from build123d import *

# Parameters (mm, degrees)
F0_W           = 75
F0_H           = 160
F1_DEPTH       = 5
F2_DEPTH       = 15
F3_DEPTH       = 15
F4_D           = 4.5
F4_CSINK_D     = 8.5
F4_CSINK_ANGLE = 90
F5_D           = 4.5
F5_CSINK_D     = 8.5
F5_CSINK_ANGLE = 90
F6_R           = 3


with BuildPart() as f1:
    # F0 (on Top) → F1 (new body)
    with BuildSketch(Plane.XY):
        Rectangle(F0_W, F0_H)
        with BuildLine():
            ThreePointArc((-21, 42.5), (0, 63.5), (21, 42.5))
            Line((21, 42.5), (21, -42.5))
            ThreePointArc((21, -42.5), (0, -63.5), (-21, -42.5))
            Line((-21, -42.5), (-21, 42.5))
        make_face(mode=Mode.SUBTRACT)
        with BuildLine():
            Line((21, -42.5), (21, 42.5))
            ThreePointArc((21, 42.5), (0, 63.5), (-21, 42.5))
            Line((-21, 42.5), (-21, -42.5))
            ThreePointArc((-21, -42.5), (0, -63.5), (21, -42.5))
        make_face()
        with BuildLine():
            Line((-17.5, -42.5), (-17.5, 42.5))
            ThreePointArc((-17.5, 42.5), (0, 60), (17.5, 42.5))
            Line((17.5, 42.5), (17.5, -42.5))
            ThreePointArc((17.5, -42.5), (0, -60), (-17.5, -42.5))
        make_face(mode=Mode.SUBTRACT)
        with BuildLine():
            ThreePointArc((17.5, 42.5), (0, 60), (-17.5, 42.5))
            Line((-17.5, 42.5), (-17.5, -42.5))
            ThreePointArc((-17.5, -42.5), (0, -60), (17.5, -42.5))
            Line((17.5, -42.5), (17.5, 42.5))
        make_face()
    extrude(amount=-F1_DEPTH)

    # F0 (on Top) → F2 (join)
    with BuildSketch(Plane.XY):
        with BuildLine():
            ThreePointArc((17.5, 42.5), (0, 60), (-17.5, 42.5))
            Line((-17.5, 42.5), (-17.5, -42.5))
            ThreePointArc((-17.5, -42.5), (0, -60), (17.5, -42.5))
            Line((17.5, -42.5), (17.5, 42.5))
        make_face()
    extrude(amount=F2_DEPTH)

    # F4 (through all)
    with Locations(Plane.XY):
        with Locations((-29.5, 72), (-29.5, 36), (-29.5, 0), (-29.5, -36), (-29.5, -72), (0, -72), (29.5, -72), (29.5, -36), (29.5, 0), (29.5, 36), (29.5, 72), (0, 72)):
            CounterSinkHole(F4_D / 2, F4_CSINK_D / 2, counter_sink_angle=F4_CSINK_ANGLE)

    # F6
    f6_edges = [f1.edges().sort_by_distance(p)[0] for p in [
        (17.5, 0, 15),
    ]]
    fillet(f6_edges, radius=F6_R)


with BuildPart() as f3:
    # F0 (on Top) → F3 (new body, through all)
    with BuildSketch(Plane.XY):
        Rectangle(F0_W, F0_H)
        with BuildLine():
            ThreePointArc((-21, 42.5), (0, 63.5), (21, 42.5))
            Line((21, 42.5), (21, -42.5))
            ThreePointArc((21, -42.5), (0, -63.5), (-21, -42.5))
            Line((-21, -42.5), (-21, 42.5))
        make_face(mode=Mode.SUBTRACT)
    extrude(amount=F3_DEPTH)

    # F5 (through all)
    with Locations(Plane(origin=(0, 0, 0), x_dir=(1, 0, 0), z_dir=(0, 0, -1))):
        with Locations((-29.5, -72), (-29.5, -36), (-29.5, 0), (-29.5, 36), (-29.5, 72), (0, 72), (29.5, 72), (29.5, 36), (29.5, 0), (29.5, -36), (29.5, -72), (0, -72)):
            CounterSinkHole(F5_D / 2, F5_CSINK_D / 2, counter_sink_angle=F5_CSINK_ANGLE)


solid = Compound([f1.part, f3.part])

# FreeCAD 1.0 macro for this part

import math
import FreeCAD as App
import Part
import Sketcher

V = App.Vector


def edges_at(feature, points):
    """Names of the edges that pass closest to the given points."""
    edges = feature.Shape.Edges
    near = lambda p: min(range(len(edges)), key=lambda i: edges[i].distToShape(Part.Vertex(*p))[0])
    return sorted({f"Edge{near(p) + 1}" for p in points})


def add_polygon(sketch, points):
    """Adds a closed chain of lines whose ends are joined by coincident constraints."""
    first, n = sketch.GeometryCount, len(points)
    for a, b in zip(points, points[1:] + points[:1]):
        sketch.addGeometry(Part.LineSegment(App.Vector(*a, 0), App.Vector(*b, 0)), False)
    for i in range(n):
        sketch.addConstraint(Sketcher.Constraint("Coincident", first + i, 2, first + (i + 1) % n, 1))

doc = App.newDocument("Part")
params = doc.addObject("Spreadsheet::Sheet", "Params")
for row, (alias, value) in enumerate([
    ("sketch1_width", "75 mm"),
    ("sketch1_height", "160 mm"),
    ("pad1_length", "5 mm"),
    ("sketch2_radius", "17.5 mm"),
    ("sketch2_height", "85 mm"),
    ("pad2_length", "15 mm"),
    ("sketch3_diameter", "4.5 mm"),
    ("hole_diameter", "4.5 mm"),
    ("hole_csink_diameter", "8.5 mm"),
    ("fillet_radius", "3 mm"),
    ("sketch4_radius", "21 mm"),
    ("sketch4_width", "75 mm"),
    ("sketch4_height", "160 mm"),
    ("sketch4_height2", "85 mm"),
    ("pad3_length", "15 mm"),
    ("sketch5_diameter", "4.5 mm"),
    ("hole2_diameter", "4.5 mm"),
    ("hole2_csink_diameter", "8.5 mm"),
], start=1):
    params.set(f"A{row}", alias)
    params.set(f"B{row}", "=" + value)
    params.setAlias(f"B{row}", alias)

body = doc.addObject("PartDesign::Body", "Body")

sketch1 = body.newObject("Sketcher::SketchObject", "Sketch")
sketch1.AttachmentSupport = (doc.getObject("XY_Plane"), [""])
sketch1.MapMode = "FlatFace"
add_polygon(sketch1, [(-38, 80), (-38, -80), (38, -80), (38, 80)])
sketch1.addConstraint([
    Sketcher.Constraint("Vertical", 0),
    Sketcher.Constraint("Horizontal", 1),
    Sketcher.Constraint("Vertical", 2),
    Sketcher.Constraint("Horizontal", 3),
    Sketcher.Constraint("Symmetric", 0, 2, 2, 2, -1, 1),
    Sketcher.Constraint("DistanceX", 1, 1, 1, 2, 75.0),
    Sketcher.Constraint("DistanceY", 0, 2, 0, 1, 160.0),
])
sketch1.setExpression("Constraints[9]", "Params.sketch1_width")
sketch1.setExpression("Constraints[10]", "Params.sketch1_height")
pad1 = body.newObject("PartDesign::Pad", "Pad")
pad1.Profile = sketch1
pad1.setExpression("Length", "Params.pad1_length")
pad1.Reversed = True

sketch2 = body.newObject("Sketcher::SketchObject", "Sketch001")
sketch2.AttachmentSupport = (doc.getObject("XY_Plane"), [""])
sketch2.MapMode = "FlatFace"
sketch2.addGeometry([
    Part.ArcOfCircle(Part.Circle(V(0, 42, 0), V(0, 0, 1), 18), math.radians(0), math.radians(180)),
    Part.LineSegment(V(-18, 42, 0), V(-18, -42, 0)),
    Part.ArcOfCircle(Part.Circle(V(0, -42, 0), V(0, 0, 1), 18), math.radians(180), math.radians(360)),
    Part.LineSegment(V(18, -42, 0), V(18, 42, 0)),
], False)
sketch2.addConstraint([
    Sketcher.Constraint("Tangent", 0, 2, 1, 1),
    Sketcher.Constraint("Tangent", 1, 2, 2, 1),
    Sketcher.Constraint("Tangent", 2, 2, 3, 1),
    Sketcher.Constraint("Tangent", 3, 2, 0, 1),
    Sketcher.Constraint("Vertical", 1),
    Sketcher.Constraint("Vertical", 3),
    Sketcher.Constraint("Symmetric", 0, 3, 2, 3, -1, 1),
    Sketcher.Constraint("Radius", 0, 17.5),
    Sketcher.Constraint("DistanceY", 1, 2, 1, 1, 85.0),
])
sketch2.setExpression("Constraints[7]", "Params.sketch2_radius")
sketch2.setExpression("Constraints[8]", "Params.sketch2_height")
pad2 = body.newObject("PartDesign::Pad", "Pad001")
pad2.Profile = sketch2
pad2.setExpression("Length", "Params.pad2_length")

sketch3 = body.newObject("Sketcher::SketchObject", "Sketch002")
sketch3.AttachmentSupport = (doc.getObject("XY_Plane"), [""])
sketch3.MapMode = "FlatFace"
sketch3.addGeometry([
    Part.Circle(V(-29.5, 72, 0), V(0, 0, 1), 2.2),
    Part.Circle(V(-29.5, 36, 0), V(0, 0, 1), 2.2),
    Part.Circle(V(-29.5, 0, 0), V(0, 0, 1), 2.2),
    Part.Circle(V(-29.5, -36, 0), V(0, 0, 1), 2.2),
    Part.Circle(V(-29.5, -72, 0), V(0, 0, 1), 2.2),
    Part.Circle(V(0, -72, 0), V(0, 0, 1), 2.2),
    Part.Circle(V(29.5, -72, 0), V(0, 0, 1), 2.2),
    Part.Circle(V(29.5, -36, 0), V(0, 0, 1), 2.2),
    Part.Circle(V(29.5, 0, 0), V(0, 0, 1), 2.2),
    Part.Circle(V(29.5, 36, 0), V(0, 0, 1), 2.2),
    Part.Circle(V(29.5, 72, 0), V(0, 0, 1), 2.2),
    Part.Circle(V(0, 72, 0), V(0, 0, 1), 2.2),
], False)
sketch3.addConstraint([
    Sketcher.Constraint("Equal", 0, 1),
    Sketcher.Constraint("Equal", 1, 2),
    Sketcher.Constraint("Equal", 2, 3),
    Sketcher.Constraint("Equal", 3, 4),
    Sketcher.Constraint("Equal", 4, 5),
    Sketcher.Constraint("Equal", 5, 6),
    Sketcher.Constraint("Equal", 6, 7),
    Sketcher.Constraint("Equal", 7, 8),
    Sketcher.Constraint("Equal", 8, 9),
    Sketcher.Constraint("Equal", 9, 10),
    Sketcher.Constraint("Equal", 10, 11),
    Sketcher.Constraint("Symmetric", 0, 3, 6, 3, -1, 1),
    Sketcher.Constraint("Symmetric", 1, 3, 7, 3, -1, 1),
    Sketcher.Constraint("Symmetric", 2, 3, 8, 3, -1, 1),
    Sketcher.Constraint("Symmetric", 3, 3, 9, 3, -1, 1),
    Sketcher.Constraint("Symmetric", 4, 3, 10, 3, -1, 1),
    Sketcher.Constraint("Symmetric", 5, 3, 11, 3, -1, 1),
    Sketcher.Constraint("Symmetric", 4, 3, 6, 3, -2),
    Sketcher.Constraint("Symmetric", 3, 3, 7, 3, -2),
    Sketcher.Constraint("PointOnObject", 2, 3, -1),
    Sketcher.Constraint("PointOnObject", 5, 3, -2),
    Sketcher.Constraint("Horizontal", 4, 3, 5, 3),
    Sketcher.Constraint("Vertical", 0, 3, 1, 3),
    Sketcher.Constraint("Vertical", 1, 3, 2, 3),
    Sketcher.Constraint("Diameter", 0, 4.5),
    Sketcher.Constraint("DistanceY", -1, 1, 0, 3, 72.0),
    Sketcher.Constraint("DistanceY", -1, 1, 1, 3, 36.0),
    Sketcher.Constraint("DistanceX", 4, 3, 6, 3, 59.0),
])
sketch3.setExpression("Constraints[24]", "Params.sketch3_diameter")
doc.recompute()
hole = body.newObject("PartDesign::Hole", "Hole")
hole.Profile = sketch3
hole.ThreadType = "None"
hole.setExpression("Diameter", "Params.hole_diameter")
hole.DepthType = "ThroughAll"
hole.HoleCutType = "Countersink"
hole.setExpression("HoleCutDiameter", "Params.hole_csink_diameter")
hole.HoleCutCountersinkAngle = 90
doc.recompute()

fillet = body.newObject("PartDesign::Fillet", "Fillet")
fillet.Base = (hole, edges_at(hole, [(17.5, 0, 15)]))
fillet.setExpression("Radius", "Params.fillet_radius")
body2 = doc.addObject("PartDesign::Body", "Body001")

sketch4 = body2.newObject("Sketcher::SketchObject", "Sketch003")
sketch4.AttachmentSupport = (doc.getObject("XY_Plane001"), [""])
sketch4.MapMode = "FlatFace"
add_polygon(sketch4, [(-38, 80), (-38, -80), (38, -80), (38, 80)])
sketch4.addGeometry(Part.LineSegment(V(-21, -42, 0), V(-21, 42, 0)), False)
sketch4.addGeometry(Part.ArcOfCircle(Part.Circle(V(0, 42, 0), V(0, 0, 1), 21), math.radians(0), math.radians(180)), False)
sketch4.addGeometry(Part.LineSegment(V(21, 42, 0), V(21, -42, 0)), False)
sketch4.addGeometry(Part.ArcOfCircle(Part.Circle(V(0, -42, 0), V(0, 0, 1), 21), math.radians(180), math.radians(360)), False)
sketch4.addConstraint([
    Sketcher.Constraint("Tangent", 4, 2, 5, 2),
    Sketcher.Constraint("Tangent", 5, 1, 6, 1),
    Sketcher.Constraint("Tangent", 6, 2, 7, 2),
    Sketcher.Constraint("Tangent", 7, 1, 4, 1),
    Sketcher.Constraint("Vertical", 0),
    Sketcher.Constraint("Horizontal", 1),
    Sketcher.Constraint("Vertical", 2),
    Sketcher.Constraint("Horizontal", 3),
    Sketcher.Constraint("Vertical", 4),
    Sketcher.Constraint("Vertical", 6),
    Sketcher.Constraint("Symmetric", 5, 3, 7, 3, -1, 1),
    Sketcher.Constraint("Symmetric", 0, 2, 2, 2, -1, 1),
    Sketcher.Constraint("Radius", 5, 21.0),
    Sketcher.Constraint("DistanceX", 1, 1, 1, 2, 75.0),
    Sketcher.Constraint("DistanceY", 0, 2, 0, 1, 160.0),
    Sketcher.Constraint("DistanceY", 4, 1, 4, 2, 85.0),
])
sketch4.setExpression("Constraints[16]", "Params.sketch4_radius")
sketch4.setExpression("Constraints[17]", "Params.sketch4_width")
sketch4.setExpression("Constraints[18]", "Params.sketch4_height")
sketch4.setExpression("Constraints[19]", "Params.sketch4_height2")
pad3 = body2.newObject("PartDesign::Pad", "Pad002")
pad3.Profile = sketch4
pad3.setExpression("Length", "Params.pad3_length")

sketch5 = body2.newObject("Sketcher::SketchObject", "Sketch004")
sketch5.AttachmentSupport = (doc.getObject("XY_Plane001"), [""])
sketch5.MapMode = "FlatFace"
sketch5.addGeometry([
    Part.Circle(V(-29.5, 72, 0), V(0, 0, 1), 2.2),
    Part.Circle(V(-29.5, 36, 0), V(0, 0, 1), 2.2),
    Part.Circle(V(-29.5, 0, 0), V(0, 0, 1), 2.2),
    Part.Circle(V(-29.5, -36, 0), V(0, 0, 1), 2.2),
    Part.Circle(V(-29.5, -72, 0), V(0, 0, 1), 2.2),
    Part.Circle(V(0, -72, 0), V(0, 0, 1), 2.2),
    Part.Circle(V(29.5, -72, 0), V(0, 0, 1), 2.2),
    Part.Circle(V(29.5, -36, 0), V(0, 0, 1), 2.2),
    Part.Circle(V(29.5, 0, 0), V(0, 0, 1), 2.2),
    Part.Circle(V(29.5, 36, 0), V(0, 0, 1), 2.2),
    Part.Circle(V(29.5, 72, 0), V(0, 0, 1), 2.2),
    Part.Circle(V(0, 72, 0), V(0, 0, 1), 2.2),
], False)
sketch5.addConstraint([
    Sketcher.Constraint("Equal", 0, 1),
    Sketcher.Constraint("Equal", 1, 2),
    Sketcher.Constraint("Equal", 2, 3),
    Sketcher.Constraint("Equal", 3, 4),
    Sketcher.Constraint("Equal", 4, 5),
    Sketcher.Constraint("Equal", 5, 6),
    Sketcher.Constraint("Equal", 6, 7),
    Sketcher.Constraint("Equal", 7, 8),
    Sketcher.Constraint("Equal", 8, 9),
    Sketcher.Constraint("Equal", 9, 10),
    Sketcher.Constraint("Equal", 10, 11),
    Sketcher.Constraint("Symmetric", 0, 3, 6, 3, -1, 1),
    Sketcher.Constraint("Symmetric", 1, 3, 7, 3, -1, 1),
    Sketcher.Constraint("Symmetric", 2, 3, 8, 3, -1, 1),
    Sketcher.Constraint("Symmetric", 3, 3, 9, 3, -1, 1),
    Sketcher.Constraint("Symmetric", 4, 3, 10, 3, -1, 1),
    Sketcher.Constraint("Symmetric", 5, 3, 11, 3, -1, 1),
    Sketcher.Constraint("Symmetric", 4, 3, 6, 3, -2),
    Sketcher.Constraint("Symmetric", 3, 3, 7, 3, -2),
    Sketcher.Constraint("PointOnObject", 2, 3, -1),
    Sketcher.Constraint("PointOnObject", 5, 3, -2),
    Sketcher.Constraint("Horizontal", 4, 3, 5, 3),
    Sketcher.Constraint("Vertical", 0, 3, 1, 3),
    Sketcher.Constraint("Vertical", 1, 3, 2, 3),
    Sketcher.Constraint("Diameter", 0, 4.5),
    Sketcher.Constraint("DistanceY", -1, 1, 0, 3, 72.0),
    Sketcher.Constraint("DistanceY", -1, 1, 1, 3, 36.0),
    Sketcher.Constraint("DistanceX", 4, 3, 6, 3, 59.0),
])
sketch5.setExpression("Constraints[24]", "Params.sketch5_diameter")
doc.recompute()
hole2 = body2.newObject("PartDesign::Hole", "Hole001")
hole2.Profile = sketch5
hole2.ThreadType = "None"
hole2.setExpression("Diameter", "Params.hole2_diameter")
hole2.DepthType = "ThroughAll"
hole2.HoleCutType = "Countersink"
hole2.setExpression("HoleCutDiameter", "Params.hole2_csink_diameter")
hole2.HoleCutCountersinkAngle = 90
hole2.Reversed = True

doc.recompute()
